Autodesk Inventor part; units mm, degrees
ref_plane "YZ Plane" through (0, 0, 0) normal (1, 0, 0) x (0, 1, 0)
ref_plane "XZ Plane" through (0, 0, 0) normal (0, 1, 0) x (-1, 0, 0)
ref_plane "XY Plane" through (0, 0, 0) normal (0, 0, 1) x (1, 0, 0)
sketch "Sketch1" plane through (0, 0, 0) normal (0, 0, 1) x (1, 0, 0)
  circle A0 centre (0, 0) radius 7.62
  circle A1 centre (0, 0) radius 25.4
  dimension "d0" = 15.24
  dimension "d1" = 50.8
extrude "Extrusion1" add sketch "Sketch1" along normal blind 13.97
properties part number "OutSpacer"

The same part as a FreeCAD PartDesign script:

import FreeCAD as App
import Part
import Sketcher

V = App.Vector
Q = App.Units.Quantity

doc = App.newDocument("Part")
body = doc.addObject("PartDesign::Body", "Body")

# Sketch on XY plane
sketch1 = doc.addObject("Sketcher::SketchObject", "Sketch")
body.addObject(sketch1)
sketch1.AttachmentSupport = (doc.XY_Plane, [""])
sketch1.MapMode = "FlatFace"
sketch1.addGeometry(Part.Circle(V(0, 0, 0), V(0, 0, 1), 25), False)
sketch1.addGeometry(Part.Circle(V(0, 0, 0), V(0, 0, 1), 8), False)
sketch1.addConstraint(Sketcher.Constraint("Coincident", 0, 3, -1, 1))
sketch1.addConstraint(Sketcher.Constraint("Coincident", 1, 3, -1, 1))
sketch1.addConstraint(Sketcher.Constraint("Diameter", 0, Q("2 in")))
sketch1.addConstraint(Sketcher.Constraint("Diameter", 1, Q("0.6 in")))
pad1 = doc.addObject("PartDesign::Pad", "Pad")
body.addObject(pad1)
pad1.Profile = sketch1
pad1.Length = Q("0.55 in")

doc.recompute()
